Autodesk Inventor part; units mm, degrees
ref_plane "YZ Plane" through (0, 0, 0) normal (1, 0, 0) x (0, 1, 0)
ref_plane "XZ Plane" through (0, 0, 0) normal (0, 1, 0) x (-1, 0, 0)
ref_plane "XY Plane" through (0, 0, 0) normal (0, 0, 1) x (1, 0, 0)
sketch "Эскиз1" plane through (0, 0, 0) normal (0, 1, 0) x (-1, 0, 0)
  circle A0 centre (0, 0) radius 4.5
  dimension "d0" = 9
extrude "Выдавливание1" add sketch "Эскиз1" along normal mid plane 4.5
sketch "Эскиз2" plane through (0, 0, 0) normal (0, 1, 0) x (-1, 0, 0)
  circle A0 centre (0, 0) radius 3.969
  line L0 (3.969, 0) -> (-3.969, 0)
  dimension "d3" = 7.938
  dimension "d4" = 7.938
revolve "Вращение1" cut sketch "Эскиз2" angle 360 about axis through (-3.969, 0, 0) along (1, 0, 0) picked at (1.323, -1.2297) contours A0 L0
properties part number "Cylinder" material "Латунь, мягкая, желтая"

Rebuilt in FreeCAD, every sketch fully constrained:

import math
import FreeCAD as App
import Part
import Sketcher

V = App.Vector
Q = App.Units.Quantity

doc = App.newDocument("Part")
body = doc.addObject("PartDesign::Body", "Body")

# Sketch on XZ plane
sketch1 = body.newObject("Sketcher::SketchObject", "Sketch")
sketch1.AttachmentSupport = (doc.getObject("XZ_Plane"), [""])
sketch1.MapMode = "FlatFace"
sketch1.addGeometry(Part.Circle(V(0, 0, 0), V(0, 0, 1), 4.5), False)
sketch1.addConstraint([
    Sketcher.Constraint("Coincident", 0, 3, -1, 1),
    Sketcher.Constraint("Diameter", 0, Q("9 mm")),
])
pad1 = body.newObject("PartDesign::Pad", "Pad")
pad1.Profile = sketch1
pad1.Length = 4.5
pad1.Midplane = True

# Sketch on XZ plane
sketch2 = body.newObject("Sketcher::SketchObject", "Sketch001")
sketch2.AttachmentSupport = (doc.getObject("XZ_Plane"), [""])
sketch2.MapMode = "FlatFace"
sketch2.addGeometry([
    Part.ArcOfCircle(Part.Circle(V(0, 0, 0), V(0, 0, 1), 3.969), math.radians(180), math.radians(360)),
    Part.LineSegment(V(-3.969, 0, 0), V(3.969, 0, 0)),
], False)
sketch2.addConstraint([
    Sketcher.Constraint("Coincident", 0, 1, 1, 1),
    Sketcher.Constraint("Coincident", 1, 2, 0, 2),
    Sketcher.Constraint("Horizontal", 1),
    Sketcher.Constraint("Coincident", 0, 3, -1, 1),
    Sketcher.Constraint("PointOnObject", 0, 1, -1),
    Sketcher.Constraint("Radius", 0, Q("3.969 mm")),
])
groove = body.newObject("PartDesign::Groove", "Groove")
groove.Profile = sketch2
groove.ReferenceAxis = (sketch2, ["H_Axis"])
groove.Angle = 360

doc.recompute()
